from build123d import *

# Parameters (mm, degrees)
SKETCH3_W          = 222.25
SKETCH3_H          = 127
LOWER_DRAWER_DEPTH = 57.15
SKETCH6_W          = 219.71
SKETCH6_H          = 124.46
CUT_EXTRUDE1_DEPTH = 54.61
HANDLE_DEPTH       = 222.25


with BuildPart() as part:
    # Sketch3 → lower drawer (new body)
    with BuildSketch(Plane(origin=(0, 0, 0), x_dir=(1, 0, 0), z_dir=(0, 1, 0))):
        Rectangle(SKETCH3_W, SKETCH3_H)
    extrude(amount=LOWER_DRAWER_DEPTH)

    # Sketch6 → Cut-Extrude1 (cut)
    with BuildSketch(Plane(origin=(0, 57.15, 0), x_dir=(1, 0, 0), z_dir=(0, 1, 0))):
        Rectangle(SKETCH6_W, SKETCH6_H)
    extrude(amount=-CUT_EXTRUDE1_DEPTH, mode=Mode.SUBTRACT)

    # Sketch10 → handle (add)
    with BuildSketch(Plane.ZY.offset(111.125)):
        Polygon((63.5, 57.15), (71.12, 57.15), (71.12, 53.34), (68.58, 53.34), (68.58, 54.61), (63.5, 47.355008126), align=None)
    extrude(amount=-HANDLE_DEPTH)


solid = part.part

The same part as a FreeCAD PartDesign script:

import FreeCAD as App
import Part
import Sketcher
Q = App.Units.Quantity

doc = App.newDocument("Part")
body = doc.addObject("PartDesign::Body", "Body")

# Sketch on XZ plane
sketch1 = body.newObject("Sketcher::SketchObject", "Sketch")
sketch1.AttachmentSupport = (doc.getObject("XZ_Plane"), [""])
sketch1.MapMode = "FlatFace"
sketch1.addGeometry(Part.LineSegment(App.Vector(-111, -64, 0), App.Vector(-111, 64, 0)), False)
sketch1.addGeometry(Part.LineSegment(App.Vector(-111, 64, 0), App.Vector(111, 64, 0)), False)
sketch1.addGeometry(Part.LineSegment(App.Vector(111, 64, 0), App.Vector(111, -64, 0)), False)
sketch1.addGeometry(Part.LineSegment(App.Vector(111, -64, 0), App.Vector(-111, -64, 0)), False)
sketch1.addConstraint(Sketcher.Constraint("Coincident", 0, 2, 1, 1))
sketch1.addConstraint(Sketcher.Constraint("Coincident", 1, 2, 2, 1))
sketch1.addConstraint(Sketcher.Constraint("Coincident", 2, 2, 3, 1))
sketch1.addConstraint(Sketcher.Constraint("Coincident", 3, 2, 0, 1))
sketch1.addConstraint(Sketcher.Constraint("Vertical", 0))
sketch1.addConstraint(Sketcher.Constraint("Horizontal", 1))
sketch1.addConstraint(Sketcher.Constraint("Vertical", 2))
sketch1.addConstraint(Sketcher.Constraint("Horizontal", 3))
sketch1.addConstraint(Sketcher.Constraint("Symmetric", 0, 2, 2, 2, -1, 1))
sketch1.addConstraint(Sketcher.Constraint("DistanceY", 0, 1, 0, 2, Q("5 in")))
sketch1.addConstraint(Sketcher.Constraint("DistanceX", 1, 1, 1, 2, Q("8.75 in")))
pad1 = body.newObject("PartDesign::Pad", "Pad")
pad1.Profile = sketch1
pad1.Length = Q("2.25 in")
pad1.Reversed = True

# Sketch on XZ plane
sketch2 = body.newObject("Sketcher::SketchObject", "Sketch001")
sketch2.AttachmentSupport = (doc.getObject("XZ_Plane"), [""])
sketch2.MapMode = "FlatFace"
sketch2.AttachmentOffset = App.Placement(App.Vector(0, 0, -2.25 * 25.4), App.Rotation())
sketch2.addGeometry(Part.LineSegment(App.Vector(-110, -62, 0), App.Vector(-110, 62, 0)), False)
sketch2.addGeometry(Part.LineSegment(App.Vector(-110, 62, 0), App.Vector(110, 62, 0)), False)
sketch2.addGeometry(Part.LineSegment(App.Vector(110, 62, 0), App.Vector(110, -62, 0)), False)
sketch2.addGeometry(Part.LineSegment(App.Vector(110, -62, 0), App.Vector(-110, -62, 0)), False)
sketch2.addConstraint(Sketcher.Constraint("Coincident", 0, 2, 1, 1))
sketch2.addConstraint(Sketcher.Constraint("Coincident", 1, 2, 2, 1))
sketch2.addConstraint(Sketcher.Constraint("Coincident", 2, 2, 3, 1))
sketch2.addConstraint(Sketcher.Constraint("Coincident", 3, 2, 0, 1))
sketch2.addConstraint(Sketcher.Constraint("Vertical", 0))
sketch2.addConstraint(Sketcher.Constraint("Horizontal", 1))
sketch2.addConstraint(Sketcher.Constraint("Vertical", 2))
sketch2.addConstraint(Sketcher.Constraint("Horizontal", 3))
sketch2.addConstraint(Sketcher.Constraint("Symmetric", 0, 2, 2, 2, -1, 1))
sketch2.addConstraint(Sketcher.Constraint("DistanceY", 0, 1, 0, 2, Q("4.9 in")))
sketch2.addConstraint(Sketcher.Constraint("DistanceX", 1, 1, 1, 2, Q("8.65 in")))
pocket1 = body.newObject("PartDesign::Pocket", "Pocket")
pocket1.Profile = sketch2
pocket1.Length = Q("2.15 in")
pocket1.Reversed = True

# Sketch on YZ plane
sketch3 = body.newObject("Sketcher::SketchObject", "Sketch002")
sketch3.AttachmentSupport = (doc.getObject("YZ_Plane"), [""])
sketch3.MapMode = "FlatFace"
sketch3.AttachmentOffset = App.Placement(App.Vector(0, 0, -4.375 * 25.4), App.Rotation())
sketch3.addGeometry(Part.LineSegment(App.Vector(57.1, 71.1, 0), App.Vector(57.1, 63.5, 0)), False)
sketch3.addGeometry(Part.LineSegment(App.Vector(57.1, 63.5, 0), App.Vector(47.4, 63.5, 0)), False)
sketch3.addGeometry(Part.LineSegment(App.Vector(47.4, 63.5, 0), App.Vector(54.6, 68.6, 0)), False)
sketch3.addGeometry(Part.LineSegment(App.Vector(54.6, 68.6, 0), App.Vector(53.3, 68.6, 0)), False)
sketch3.addGeometry(Part.LineSegment(App.Vector(53.3, 68.6, 0), App.Vector(53.3, 71.1, 0)), False)
sketch3.addGeometry(Part.LineSegment(App.Vector(53.3, 71.1, 0), App.Vector(57.1, 71.1, 0)), False)
sketch3.addConstraint(Sketcher.Constraint("Coincident", 0, 2, 1, 1))
sketch3.addConstraint(Sketcher.Constraint("Coincident", 1, 2, 2, 1))
sketch3.addConstraint(Sketcher.Constraint("Coincident", 2, 2, 3, 1))
sketch3.addConstraint(Sketcher.Constraint("Coincident", 3, 2, 4, 1))
sketch3.addConstraint(Sketcher.Constraint("Coincident", 4, 2, 5, 1))
sketch3.addConstraint(Sketcher.Constraint("Coincident", 5, 2, 0, 1))
sketch3.addConstraint(Sketcher.Constraint("Vertical", 0))
sketch3.addConstraint(Sketcher.Constraint("Horizontal", 1))
sketch3.addConstraint(Sketcher.Constraint("Horizontal", 3))
sketch3.addConstraint(Sketcher.Constraint("Vertical", 4))
sketch3.addConstraint(Sketcher.Constraint("Horizontal", 5))
sketch3.addConstraint(Sketcher.Constraint("DistanceY", 0, 2, 0, 1, Q("0.3 in")))
sketch3.addConstraint(Sketcher.Constraint("DistanceY", 4, 1, 4, 2, Q("0.1 in")))
sketch3.addConstraint(Sketcher.Constraint("Angle", 2, Q("35 deg")))
sketch3.addConstraint(Sketcher.Constraint("DistanceX", 3, 2, 3, 1, Q("0.05 in")))
sketch3.addConstraint(Sketcher.Constraint("DistanceX", 5, 1, 5, 2, Q("0.15 in")))
sketch3.addConstraint(Sketcher.Constraint("DistanceY", -1, 1, 0, 2, Q("2.5 in")))
sketch3.addConstraint(Sketcher.Constraint("DistanceX", -1, 1, 3, 2, Q("2.1 in")))
pad2 = body.newObject("PartDesign::Pad", "Pad001")
pad2.Profile = sketch3
pad2.Length = Q("8.75 in")

doc.recompute()
